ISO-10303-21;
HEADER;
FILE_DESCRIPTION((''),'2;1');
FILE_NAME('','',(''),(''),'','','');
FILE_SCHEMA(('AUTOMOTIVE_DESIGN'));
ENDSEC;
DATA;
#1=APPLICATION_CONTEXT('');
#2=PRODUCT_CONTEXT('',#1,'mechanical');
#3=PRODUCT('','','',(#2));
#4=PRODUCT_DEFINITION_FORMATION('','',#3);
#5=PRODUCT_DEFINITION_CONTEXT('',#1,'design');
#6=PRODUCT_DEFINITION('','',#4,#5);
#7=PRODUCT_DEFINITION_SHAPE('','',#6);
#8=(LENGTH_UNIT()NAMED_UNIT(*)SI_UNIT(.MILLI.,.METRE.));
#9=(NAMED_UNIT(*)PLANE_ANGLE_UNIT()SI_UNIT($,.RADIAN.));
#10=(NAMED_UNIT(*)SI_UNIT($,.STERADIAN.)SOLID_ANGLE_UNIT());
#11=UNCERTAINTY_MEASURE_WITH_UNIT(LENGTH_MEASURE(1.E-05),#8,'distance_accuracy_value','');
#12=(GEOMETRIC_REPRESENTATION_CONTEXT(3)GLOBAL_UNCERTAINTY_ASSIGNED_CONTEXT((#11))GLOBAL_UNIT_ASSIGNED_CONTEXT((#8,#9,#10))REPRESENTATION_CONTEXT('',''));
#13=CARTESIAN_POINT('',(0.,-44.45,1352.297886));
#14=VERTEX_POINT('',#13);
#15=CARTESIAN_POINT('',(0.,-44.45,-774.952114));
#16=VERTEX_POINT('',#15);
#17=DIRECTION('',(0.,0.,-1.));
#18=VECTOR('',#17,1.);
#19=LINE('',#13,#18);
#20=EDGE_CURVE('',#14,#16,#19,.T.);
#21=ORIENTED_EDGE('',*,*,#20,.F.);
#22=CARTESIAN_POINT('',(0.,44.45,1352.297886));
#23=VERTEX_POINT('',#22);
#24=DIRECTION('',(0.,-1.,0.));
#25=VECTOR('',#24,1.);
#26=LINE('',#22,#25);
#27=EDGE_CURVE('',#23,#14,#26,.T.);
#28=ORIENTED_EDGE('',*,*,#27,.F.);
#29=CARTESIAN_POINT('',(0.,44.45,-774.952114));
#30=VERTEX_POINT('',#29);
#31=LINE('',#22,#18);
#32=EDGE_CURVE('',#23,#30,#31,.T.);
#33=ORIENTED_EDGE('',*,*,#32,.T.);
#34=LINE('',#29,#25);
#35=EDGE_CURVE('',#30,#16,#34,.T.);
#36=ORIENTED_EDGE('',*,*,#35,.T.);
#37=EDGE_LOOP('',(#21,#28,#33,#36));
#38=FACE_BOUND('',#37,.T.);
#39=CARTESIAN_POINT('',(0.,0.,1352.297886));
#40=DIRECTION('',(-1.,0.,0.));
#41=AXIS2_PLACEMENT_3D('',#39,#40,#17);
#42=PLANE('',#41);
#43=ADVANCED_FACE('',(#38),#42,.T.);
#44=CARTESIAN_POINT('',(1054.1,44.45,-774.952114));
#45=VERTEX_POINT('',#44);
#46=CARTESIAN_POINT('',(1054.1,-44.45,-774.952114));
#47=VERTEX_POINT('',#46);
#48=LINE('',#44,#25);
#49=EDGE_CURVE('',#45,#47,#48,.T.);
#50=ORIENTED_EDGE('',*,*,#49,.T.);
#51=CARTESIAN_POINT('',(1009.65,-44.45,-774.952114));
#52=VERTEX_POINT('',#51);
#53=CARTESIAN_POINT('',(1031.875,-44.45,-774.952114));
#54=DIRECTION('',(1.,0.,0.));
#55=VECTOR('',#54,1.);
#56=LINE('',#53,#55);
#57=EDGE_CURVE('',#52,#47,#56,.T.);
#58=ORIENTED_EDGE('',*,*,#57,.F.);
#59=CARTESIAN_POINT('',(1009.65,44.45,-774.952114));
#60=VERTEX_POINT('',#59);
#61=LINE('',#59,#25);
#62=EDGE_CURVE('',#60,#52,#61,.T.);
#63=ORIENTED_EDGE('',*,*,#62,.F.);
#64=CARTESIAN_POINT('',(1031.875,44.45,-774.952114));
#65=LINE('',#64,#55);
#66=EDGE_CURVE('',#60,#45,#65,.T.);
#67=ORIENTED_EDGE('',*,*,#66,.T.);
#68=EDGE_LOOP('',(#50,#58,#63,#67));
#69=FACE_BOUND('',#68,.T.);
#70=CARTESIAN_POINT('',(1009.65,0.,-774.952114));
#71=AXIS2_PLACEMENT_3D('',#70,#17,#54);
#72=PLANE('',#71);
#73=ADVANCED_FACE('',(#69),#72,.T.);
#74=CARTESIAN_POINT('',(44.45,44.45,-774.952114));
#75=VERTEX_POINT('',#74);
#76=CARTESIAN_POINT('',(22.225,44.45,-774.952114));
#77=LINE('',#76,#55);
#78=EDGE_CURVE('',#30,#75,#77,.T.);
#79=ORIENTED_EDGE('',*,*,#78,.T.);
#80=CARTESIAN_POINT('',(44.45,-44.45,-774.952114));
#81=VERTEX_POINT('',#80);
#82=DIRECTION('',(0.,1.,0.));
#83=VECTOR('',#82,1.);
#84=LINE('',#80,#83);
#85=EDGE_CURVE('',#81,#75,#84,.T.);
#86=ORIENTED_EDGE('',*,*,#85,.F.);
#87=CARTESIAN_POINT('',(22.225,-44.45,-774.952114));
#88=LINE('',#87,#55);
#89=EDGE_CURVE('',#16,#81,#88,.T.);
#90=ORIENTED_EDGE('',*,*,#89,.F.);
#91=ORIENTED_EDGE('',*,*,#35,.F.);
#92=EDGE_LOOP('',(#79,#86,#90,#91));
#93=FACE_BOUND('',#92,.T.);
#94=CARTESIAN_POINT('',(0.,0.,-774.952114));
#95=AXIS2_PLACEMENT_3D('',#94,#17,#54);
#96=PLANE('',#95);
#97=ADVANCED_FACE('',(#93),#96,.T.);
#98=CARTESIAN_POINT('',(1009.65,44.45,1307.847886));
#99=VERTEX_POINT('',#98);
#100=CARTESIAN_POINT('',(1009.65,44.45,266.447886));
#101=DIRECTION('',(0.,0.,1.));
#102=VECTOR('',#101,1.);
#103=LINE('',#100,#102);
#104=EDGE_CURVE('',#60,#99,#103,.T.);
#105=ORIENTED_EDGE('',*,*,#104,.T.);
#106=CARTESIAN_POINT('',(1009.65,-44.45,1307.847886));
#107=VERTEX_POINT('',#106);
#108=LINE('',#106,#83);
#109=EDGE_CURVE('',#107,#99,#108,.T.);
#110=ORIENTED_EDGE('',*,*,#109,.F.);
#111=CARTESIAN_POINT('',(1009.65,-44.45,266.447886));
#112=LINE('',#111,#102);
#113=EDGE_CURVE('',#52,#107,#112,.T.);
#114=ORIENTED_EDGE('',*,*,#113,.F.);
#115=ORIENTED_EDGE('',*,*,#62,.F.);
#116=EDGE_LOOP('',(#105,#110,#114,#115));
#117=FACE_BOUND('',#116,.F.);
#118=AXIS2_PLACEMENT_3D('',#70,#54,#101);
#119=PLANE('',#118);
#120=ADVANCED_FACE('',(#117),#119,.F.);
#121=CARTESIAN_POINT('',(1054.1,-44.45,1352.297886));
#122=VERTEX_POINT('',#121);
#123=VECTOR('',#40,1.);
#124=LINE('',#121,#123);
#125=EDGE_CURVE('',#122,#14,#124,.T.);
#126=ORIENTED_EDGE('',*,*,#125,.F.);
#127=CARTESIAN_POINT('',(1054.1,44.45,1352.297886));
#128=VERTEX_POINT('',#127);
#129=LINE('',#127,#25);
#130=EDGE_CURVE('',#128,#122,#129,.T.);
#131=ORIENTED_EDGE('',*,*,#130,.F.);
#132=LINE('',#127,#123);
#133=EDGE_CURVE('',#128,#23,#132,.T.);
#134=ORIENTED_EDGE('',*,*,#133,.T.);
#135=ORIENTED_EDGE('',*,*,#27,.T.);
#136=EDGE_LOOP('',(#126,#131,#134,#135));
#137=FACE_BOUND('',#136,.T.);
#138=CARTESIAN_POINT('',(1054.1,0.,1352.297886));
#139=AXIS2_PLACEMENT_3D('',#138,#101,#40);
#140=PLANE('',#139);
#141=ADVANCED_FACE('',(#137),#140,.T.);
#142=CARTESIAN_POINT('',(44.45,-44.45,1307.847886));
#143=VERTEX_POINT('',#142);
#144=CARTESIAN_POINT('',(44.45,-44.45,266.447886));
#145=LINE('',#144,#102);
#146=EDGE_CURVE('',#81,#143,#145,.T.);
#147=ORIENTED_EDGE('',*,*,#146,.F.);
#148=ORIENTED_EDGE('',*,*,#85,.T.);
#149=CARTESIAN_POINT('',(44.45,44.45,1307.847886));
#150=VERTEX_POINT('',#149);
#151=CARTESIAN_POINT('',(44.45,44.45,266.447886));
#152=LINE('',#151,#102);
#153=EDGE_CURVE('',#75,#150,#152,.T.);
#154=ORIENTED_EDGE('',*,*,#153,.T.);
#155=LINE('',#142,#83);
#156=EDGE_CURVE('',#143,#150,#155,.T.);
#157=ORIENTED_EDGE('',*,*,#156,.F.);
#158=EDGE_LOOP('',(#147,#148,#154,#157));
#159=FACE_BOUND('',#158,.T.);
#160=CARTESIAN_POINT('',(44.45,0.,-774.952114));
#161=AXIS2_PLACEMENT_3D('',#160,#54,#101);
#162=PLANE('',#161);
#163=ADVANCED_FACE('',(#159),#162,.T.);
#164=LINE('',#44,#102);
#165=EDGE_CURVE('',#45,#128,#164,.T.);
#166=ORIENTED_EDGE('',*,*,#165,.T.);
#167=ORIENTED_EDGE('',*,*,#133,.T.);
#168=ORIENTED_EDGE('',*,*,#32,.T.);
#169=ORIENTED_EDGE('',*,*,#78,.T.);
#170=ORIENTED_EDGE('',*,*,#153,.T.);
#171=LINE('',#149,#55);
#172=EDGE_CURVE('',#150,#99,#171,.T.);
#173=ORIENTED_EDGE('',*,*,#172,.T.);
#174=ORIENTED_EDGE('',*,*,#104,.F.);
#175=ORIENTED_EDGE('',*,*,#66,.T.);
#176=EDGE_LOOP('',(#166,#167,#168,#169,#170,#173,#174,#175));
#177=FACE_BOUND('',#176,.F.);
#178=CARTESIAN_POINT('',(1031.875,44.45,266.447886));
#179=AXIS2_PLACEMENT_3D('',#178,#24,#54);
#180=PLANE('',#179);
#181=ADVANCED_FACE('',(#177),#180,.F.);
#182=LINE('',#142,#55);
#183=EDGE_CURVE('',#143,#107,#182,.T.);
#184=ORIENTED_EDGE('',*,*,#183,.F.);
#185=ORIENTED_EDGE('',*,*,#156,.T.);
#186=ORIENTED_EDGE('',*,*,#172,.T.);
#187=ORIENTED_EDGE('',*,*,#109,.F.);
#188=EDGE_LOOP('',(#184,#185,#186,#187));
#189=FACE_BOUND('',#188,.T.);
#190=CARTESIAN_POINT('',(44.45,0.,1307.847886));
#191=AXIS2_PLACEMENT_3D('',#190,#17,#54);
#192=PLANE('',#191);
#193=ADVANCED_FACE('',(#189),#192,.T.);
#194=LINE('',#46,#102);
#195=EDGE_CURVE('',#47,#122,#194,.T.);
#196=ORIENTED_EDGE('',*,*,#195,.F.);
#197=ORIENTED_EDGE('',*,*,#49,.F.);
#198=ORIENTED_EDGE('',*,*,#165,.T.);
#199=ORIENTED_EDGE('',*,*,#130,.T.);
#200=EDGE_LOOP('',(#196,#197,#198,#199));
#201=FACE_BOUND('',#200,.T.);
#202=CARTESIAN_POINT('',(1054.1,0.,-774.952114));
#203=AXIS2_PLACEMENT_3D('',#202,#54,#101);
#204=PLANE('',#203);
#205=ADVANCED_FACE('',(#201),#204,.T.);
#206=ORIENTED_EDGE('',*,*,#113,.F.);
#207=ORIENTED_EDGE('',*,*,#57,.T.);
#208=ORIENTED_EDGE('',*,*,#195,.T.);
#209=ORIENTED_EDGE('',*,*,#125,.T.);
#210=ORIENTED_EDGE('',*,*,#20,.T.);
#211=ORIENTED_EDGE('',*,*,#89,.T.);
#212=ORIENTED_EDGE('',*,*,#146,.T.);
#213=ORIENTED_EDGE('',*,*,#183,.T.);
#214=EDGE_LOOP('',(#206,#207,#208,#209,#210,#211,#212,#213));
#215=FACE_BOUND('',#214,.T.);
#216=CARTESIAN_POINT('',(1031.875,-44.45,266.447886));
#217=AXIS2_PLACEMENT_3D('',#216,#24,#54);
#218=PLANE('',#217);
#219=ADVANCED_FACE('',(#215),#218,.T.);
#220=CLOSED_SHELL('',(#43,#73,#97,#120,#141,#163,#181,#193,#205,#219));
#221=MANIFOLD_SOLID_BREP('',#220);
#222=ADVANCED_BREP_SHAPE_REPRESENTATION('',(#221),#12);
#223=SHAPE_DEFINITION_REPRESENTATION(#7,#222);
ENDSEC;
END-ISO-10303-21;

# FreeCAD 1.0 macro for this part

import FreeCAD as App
import Part
import Sketcher
Q = App.Units.Quantity


def add_polygon(sketch, points):
    """Adds a closed chain of lines whose ends are joined by coincident constraints."""
    first, n = sketch.GeometryCount, len(points)
    for a, b in zip(points, points[1:] + points[:1]):
        sketch.addGeometry(Part.LineSegment(App.Vector(*a, 0), App.Vector(*b, 0)), False)
    for i in range(n):
        sketch.addConstraint(Sketcher.Constraint("Coincident", first + i, 2, first + (i + 1) % n, 1))

doc = App.newDocument("Part")
body = doc.addObject("PartDesign::Body", "Body")

sketch1 = doc.addObject("Sketcher::SketchObject", "Sketch")
body.addObject(sketch1)
sketch1.AttachmentSupport = (doc.XZ_Plane, [""])
sketch1.MapMode = "FlatFace"
add_polygon(sketch1, [(1010, 1308), (1010, -775), (1054, -775), (1054, 1352), (0, 1352), (0, -775), (44, -775), (44, 1308)])
sketch1.addConstraint([
    Sketcher.Constraint("Vertical", 0),
    Sketcher.Constraint("Horizontal", 1),
    Sketcher.Constraint("Vertical", 2),
    Sketcher.Constraint("Horizontal", 3),
    Sketcher.Constraint("Vertical", 4),
    Sketcher.Constraint("Horizontal", 5),
    Sketcher.Constraint("Vertical", 6),
    Sketcher.Constraint("Horizontal", 7),
    Sketcher.Constraint("PointOnObject", 3, 2, -2),
    Sketcher.Constraint("Horizontal", 1, 2, 4, 2),
    Sketcher.Constraint("Equal", 1, 5),
    Sketcher.Constraint("DistanceX", 7, 1, 7, 2, Q("38 in")),
    Sketcher.Constraint("DistanceY", 0, 2, 0, 1, Q("82 in")),
    Sketcher.Constraint("DistanceX", 3, 2, 3, 1, Q("41.5 in")),
    Sketcher.Constraint("DistanceY", 2, 1, 2, 2, Q("83.75 in")),
    Sketcher.Constraint("DistanceY", 0, 2, -1, 1, Q("774.952114 mm")),
])
pad1 = doc.addObject("PartDesign::Pad", "Pad")
body.addObject(pad1)
pad1.Profile = sketch1
pad1.Length = Q("3.5 in")
pad1.Midplane = True

doc.recompute()
